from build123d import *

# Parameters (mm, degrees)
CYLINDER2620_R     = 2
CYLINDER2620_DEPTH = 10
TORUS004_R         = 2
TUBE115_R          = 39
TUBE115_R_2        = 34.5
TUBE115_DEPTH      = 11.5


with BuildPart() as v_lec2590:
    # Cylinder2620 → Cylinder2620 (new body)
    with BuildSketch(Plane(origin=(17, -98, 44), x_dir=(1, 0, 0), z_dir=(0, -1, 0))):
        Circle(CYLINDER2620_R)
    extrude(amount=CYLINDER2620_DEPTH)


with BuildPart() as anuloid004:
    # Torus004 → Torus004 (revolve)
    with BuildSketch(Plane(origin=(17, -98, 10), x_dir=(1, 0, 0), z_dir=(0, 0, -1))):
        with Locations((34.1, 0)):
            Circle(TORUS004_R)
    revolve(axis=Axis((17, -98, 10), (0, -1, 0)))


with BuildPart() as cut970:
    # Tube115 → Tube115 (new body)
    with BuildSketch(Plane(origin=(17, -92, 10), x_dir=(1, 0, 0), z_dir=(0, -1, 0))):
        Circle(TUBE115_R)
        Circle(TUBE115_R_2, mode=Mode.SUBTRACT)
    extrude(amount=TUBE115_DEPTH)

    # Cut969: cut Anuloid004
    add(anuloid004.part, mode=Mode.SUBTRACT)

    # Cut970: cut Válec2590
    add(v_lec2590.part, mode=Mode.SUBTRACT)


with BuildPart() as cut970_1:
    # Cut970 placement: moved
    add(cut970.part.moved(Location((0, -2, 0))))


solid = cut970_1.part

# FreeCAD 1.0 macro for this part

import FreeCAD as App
import Part
import Sketcher

V = App.Vector

doc = App.newDocument("Part")
body = doc.addObject("PartDesign::Body", "Body")

# Sketch on XZ plane
sketch1 = body.newObject("Sketcher::SketchObject", "Sketch")
sketch1.AttachmentSupport = (doc.getObject("XZ_Plane"), [""])
sketch1.MapMode = "FlatFace"
sketch1.AttachmentOffset = App.Placement(V(0, 0, 98), App.Rotation())
sketch1.addGeometry(Part.Circle(V(17, 44, 0), V(0, 0, 1), 2), False)
sketch1.addConstraint([
    Sketcher.Constraint("Diameter", 0, 4.0),
    Sketcher.Constraint("DistanceX", -1, 1, 0, 3, 17.0),
    Sketcher.Constraint("DistanceY", -1, 1, 0, 3, 44.0),
])
pad1 = body.newObject("PartDesign::Pad", "Pad")
pad1.Profile = sketch1
pad1.Length = 10
body2 = doc.addObject("PartDesign::Body", "Body001")

# Sketch on XY plane
sketch2 = body2.newObject("Sketcher::SketchObject", "Sketch001")
sketch2.AttachmentSupport = (doc.getObject("XY_Plane001"), [""])
sketch2.MapMode = "FlatFace"
sketch2.AttachmentOffset = App.Placement(V(0, 0, 10), App.Rotation())
sketch2.addGeometry(Part.Circle(V(51.1, -98, 0), V(0, 0, 1), 2), False)
sketch2.addGeometry(Part.LineSegment(V(17, -98, 0), V(17, -108, 0)), True)  # axis
sketch2.addConstraint([
    Sketcher.Constraint("Vertical", 1),
    Sketcher.Constraint("Horizontal", 0, 3, 1, 1),
    Sketcher.Constraint("Diameter", 0, 4.0),
    Sketcher.Constraint("DistanceY", 1, 2, 1, 1, 10.0),
    Sketcher.Constraint("DistanceY", 0, 3, -1, 1, 98.0),
    Sketcher.Constraint("DistanceX", -1, 1, 1, 1, 17.0),
    Sketcher.Constraint("DistanceX", -1, 1, 0, 3, 51.1),
])
revolution = body2.newObject("PartDesign::Revolution", "Revolution")
revolution.Profile = sketch2
revolution.ReferenceAxis = (sketch2, ["Axis0"])
revolution.Angle = 360
body3 = doc.addObject("PartDesign::Body", "Body002")

# Sketch on XZ plane
sketch3 = body3.newObject("Sketcher::SketchObject", "Sketch002")
sketch3.AttachmentSupport = (doc.getObject("XZ_Plane002"), [""])
sketch3.MapMode = "FlatFace"
sketch3.AttachmentOffset = App.Placement(V(0, 0, 92), App.Rotation())
sketch3.addGeometry([
    Part.Circle(V(17, 10, 0), V(0, 0, 1), 39),
    Part.Circle(V(17, 10, 0), V(0, 0, 1), 34),
], False)
sketch3.addConstraint([
    Sketcher.Constraint("Coincident", 1, 3, 0, 3),
    Sketcher.Constraint("Diameter", 0, 78.0),
    Sketcher.Constraint("Diameter", 1, 69.0),
    Sketcher.Constraint("DistanceX", -1, 1, 0, 3, 17.0),
    Sketcher.Constraint("DistanceY", -1, 1, 0, 3, 10.0),
])
pad2 = body3.newObject("PartDesign::Pad", "Pad001")
pad2.Profile = sketch3
pad2.Length = 11.5
doc.recompute()

boolean = body3.newObject("PartDesign::Boolean", "Boolean")
boolean.Type = "Cut"
boolean.addObjects([body2])
doc.recompute()

boolean2 = body3.newObject("PartDesign::Boolean", "Boolean001")
boolean2.Type = "Cut"
boolean2.addObjects([body])
body4 = doc.addObject("PartDesign::Body", "Body003")
doc.recompute()

body3.Placement = App.Placement(V(0, -2, 0), App.Rotation(V(0, 0, 1), 0))
boolean3 = body4.newObject("PartDesign::Boolean", "Boolean002")
boolean3.Type = "Fuse"
boolean3.addObjects([body3])

doc.recompute()
